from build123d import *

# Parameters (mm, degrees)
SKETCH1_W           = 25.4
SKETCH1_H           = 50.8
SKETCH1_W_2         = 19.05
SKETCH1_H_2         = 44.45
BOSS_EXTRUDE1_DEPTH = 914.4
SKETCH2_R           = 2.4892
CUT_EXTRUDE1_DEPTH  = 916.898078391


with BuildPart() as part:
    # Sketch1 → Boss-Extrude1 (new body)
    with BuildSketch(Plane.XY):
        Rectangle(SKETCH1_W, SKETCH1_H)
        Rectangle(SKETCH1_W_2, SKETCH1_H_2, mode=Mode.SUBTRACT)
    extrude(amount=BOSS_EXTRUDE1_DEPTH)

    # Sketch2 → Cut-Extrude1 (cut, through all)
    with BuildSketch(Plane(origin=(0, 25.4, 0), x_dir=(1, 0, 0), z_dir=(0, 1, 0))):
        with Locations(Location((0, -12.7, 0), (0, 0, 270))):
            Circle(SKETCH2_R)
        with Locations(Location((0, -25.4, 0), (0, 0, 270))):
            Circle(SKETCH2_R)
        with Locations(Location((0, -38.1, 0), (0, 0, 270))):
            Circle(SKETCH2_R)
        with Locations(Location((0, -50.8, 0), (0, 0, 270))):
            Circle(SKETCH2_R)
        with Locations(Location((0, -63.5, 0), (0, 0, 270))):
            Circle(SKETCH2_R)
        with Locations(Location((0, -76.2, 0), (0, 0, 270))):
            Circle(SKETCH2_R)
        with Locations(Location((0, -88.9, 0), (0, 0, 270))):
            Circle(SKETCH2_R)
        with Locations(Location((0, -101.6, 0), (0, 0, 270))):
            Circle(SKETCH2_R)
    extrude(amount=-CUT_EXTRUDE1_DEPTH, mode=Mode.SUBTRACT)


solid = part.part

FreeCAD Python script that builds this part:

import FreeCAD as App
import Part
import Sketcher

V = App.Vector
Q = App.Units.Quantity

doc = App.newDocument("Part")
body = doc.addObject("PartDesign::Body", "Body")

# Sketch on XY plane
sketch1 = body.newObject("Sketcher::SketchObject", "Sketch")
sketch1.AttachmentSupport = (doc.getObject("XY_Plane"), [""])
sketch1.MapMode = "FlatFace"
sketch1.addGeometry([
    Part.LineSegment(V(-13, 25, 0), V(-13, -25, 0)),  # 0
    Part.LineSegment(V(-13, -25, 0), V(13, -25, 0)),  # 1
    Part.LineSegment(V(13, -25, 0), V(13, 25, 0)),  # 2
    Part.LineSegment(V(13, 25, 0), V(-13, 25, 0)),  # 3
    Part.LineSegment(V(10, -22, 0), V(-10, -22, 0)),  # 4
    Part.LineSegment(V(-10, -22, 0), V(-10, 22, 0)),  # 5
    Part.LineSegment(V(-10, 22, 0), V(10, 22, 0)),  # 6
    Part.LineSegment(V(10, 22, 0), V(10, -22, 0)),  # 7
], False)
sketch1.addConstraint([
    Sketcher.Constraint("Coincident", 0, 2, 1, 1),
    Sketcher.Constraint("Coincident", 1, 2, 2, 1),
    Sketcher.Constraint("Coincident", 2, 2, 3, 1),
    Sketcher.Constraint("Coincident", 3, 2, 0, 1),
    Sketcher.Constraint("Coincident", 4, 2, 5, 1),
    Sketcher.Constraint("Coincident", 5, 2, 6, 1),
    Sketcher.Constraint("Coincident", 6, 2, 7, 1),
    Sketcher.Constraint("Coincident", 7, 2, 4, 1),
    Sketcher.Constraint("Vertical", 0),
    Sketcher.Constraint("Horizontal", 1),
    Sketcher.Constraint("Vertical", 2),
    Sketcher.Constraint("Horizontal", 3),
    Sketcher.Constraint("Horizontal", 4),
    Sketcher.Constraint("Vertical", 5),
    Sketcher.Constraint("Horizontal", 6),
    Sketcher.Constraint("Vertical", 7),
    Sketcher.Constraint("Symmetric", 0, 2, 2, 2, -1, 1),
    Sketcher.Constraint("Symmetric", 4, 2, 6, 2, -1, 1),
    Sketcher.Constraint("DistanceX", 1, 1, 1, 2, Q("1 in")),
    Sketcher.Constraint("DistanceY", 0, 2, 0, 1, Q("2 in")),
    Sketcher.Constraint("DistanceX", 4, 2, 4, 1, Q("0.75 in")),
    Sketcher.Constraint("DistanceY", 5, 1, 5, 2, Q("1.75 in")),
])
pad1 = body.newObject("PartDesign::Pad", "Pad")
pad1.Profile = sketch1
pad1.Length = Q("36 in")

# Sketch on XZ plane
sketch2 = body.newObject("Sketcher::SketchObject", "Sketch001")
sketch2.AttachmentSupport = (doc.getObject("XZ_Plane"), [""])
sketch2.MapMode = "FlatFace"
sketch2.AttachmentOffset = App.Placement(V(0, 0, -1 * 25.4), App.Rotation())
sketch2.addGeometry([
    Part.Circle(V(0, 12.7, 0), V(0, 0, 1), 2.5),  # 0
    Part.Circle(V(0, 25.4, 0), V(0, 0, 1), 2.5),  # 1
    Part.Circle(V(0, 38.1, 0), V(0, 0, 1), 2.5),  # 2
    Part.Circle(V(0, 50.8, 0), V(0, 0, 1), 2.5),  # 3
    Part.Circle(V(0, 63.5, 0), V(0, 0, 1), 2.5),  # 4
    Part.Circle(V(0, 76.2, 0), V(0, 0, 1), 2.5),  # 5
    Part.Circle(V(0, 88.9, 0), V(0, 0, 1), 2.5),  # 6
    Part.Circle(V(0, 101.6, 0), V(0, 0, 1), 2.5),  # 7
], False)
sketch2.addConstraint([
    Sketcher.Constraint("Equal", 0, 1),
    Sketcher.Constraint("Equal", 1, 2),
    Sketcher.Constraint("Equal", 2, 3),
    Sketcher.Constraint("Equal", 3, 4),
    Sketcher.Constraint("Equal", 4, 5),
    Sketcher.Constraint("Equal", 5, 6),
    Sketcher.Constraint("Equal", 6, 7),
    Sketcher.Constraint("PointOnObject", 0, 3, -2),
    Sketcher.Constraint("PointOnObject", 1, 3, -2),
    Sketcher.Constraint("PointOnObject", 2, 3, -2),
    Sketcher.Constraint("PointOnObject", 3, 3, -2),
    Sketcher.Constraint("PointOnObject", 4, 3, -2),
    Sketcher.Constraint("PointOnObject", 5, 3, -2),
    Sketcher.Constraint("PointOnObject", 6, 3, -2),
    Sketcher.Constraint("PointOnObject", 7, 3, -2),
    Sketcher.Constraint("Diameter", 0, Q("0.196 in")),
    Sketcher.Constraint("DistanceY", -1, 1, 1, 3, Q("1 in")),
    Sketcher.Constraint("DistanceY", -1, 1, 3, 3, Q("2 in")),
    Sketcher.Constraint("DistanceY", -1, 1, 5, 3, Q("3 in")),
    Sketcher.Constraint("DistanceY", -1, 1, 7, 3, Q("4 in")),
    Sketcher.Constraint("DistanceY", 0, 3, 2, 3, Q("1 in")),
    Sketcher.Constraint("DistanceY", 2, 3, 4, 3, Q("1 in")),
    Sketcher.Constraint("DistanceY", 4, 3, 6, 3, Q("1 in")),
    Sketcher.Constraint("DistanceY", -1, 1, 0, 3, Q("0.5 in")),
])
pocket1 = body.newObject("PartDesign::Pocket", "Pocket")
pocket1.Profile = sketch2
pocket1.Type = "ThroughAll"
pocket1.Reversed = True

doc.recompute()
